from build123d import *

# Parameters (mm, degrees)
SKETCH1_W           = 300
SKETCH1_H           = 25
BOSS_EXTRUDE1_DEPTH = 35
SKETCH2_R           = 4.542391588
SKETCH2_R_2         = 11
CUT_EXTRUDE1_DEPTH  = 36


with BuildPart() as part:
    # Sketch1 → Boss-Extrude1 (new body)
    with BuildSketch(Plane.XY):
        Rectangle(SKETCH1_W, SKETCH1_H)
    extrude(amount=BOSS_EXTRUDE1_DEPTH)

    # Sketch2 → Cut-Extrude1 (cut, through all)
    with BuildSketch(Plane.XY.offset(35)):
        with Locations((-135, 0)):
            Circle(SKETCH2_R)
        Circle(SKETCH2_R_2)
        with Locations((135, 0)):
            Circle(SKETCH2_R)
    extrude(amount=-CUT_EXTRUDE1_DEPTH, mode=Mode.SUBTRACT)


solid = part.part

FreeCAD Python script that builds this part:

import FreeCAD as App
import Part
import Sketcher
Q = App.Units.Quantity

doc = App.newDocument("Part")
body = doc.addObject("PartDesign::Body", "Body")

sketch1 = body.newObject("Sketcher::SketchObject", "Sketch")
sketch1.AttachmentSupport = (doc.getObject("XY_Plane"), [""])
sketch1.MapMode = "FlatFace"
sketch1.addGeometry([
    Part.LineSegment(App.Vector(-150, 12.5, 0), App.Vector(-150, -12.5, 0)),
    Part.LineSegment(App.Vector(-150, -12.5, 0), App.Vector(150, -12.5, 0)),
    Part.LineSegment(App.Vector(150, -12.5, 0), App.Vector(150, 12.5, 0)),
    Part.LineSegment(App.Vector(150, 12.5, 0), App.Vector(-150, 12.5, 0)),
], False)
sketch1.addConstraint([
    Sketcher.Constraint("Coincident", 0, 2, 1, 1),
    Sketcher.Constraint("Coincident", 1, 2, 2, 1),
    Sketcher.Constraint("Coincident", 2, 2, 3, 1),
    Sketcher.Constraint("Coincident", 3, 2, 0, 1),
    Sketcher.Constraint("Vertical", 0),
    Sketcher.Constraint("Horizontal", 1),
    Sketcher.Constraint("Vertical", 2),
    Sketcher.Constraint("Horizontal", 3),
    Sketcher.Constraint("Symmetric", 0, 2, 2, 2, -1, 1),
    Sketcher.Constraint("DistanceX", 1, 1, 1, 2, Q("300 mm")),
    Sketcher.Constraint("DistanceY", 0, 2, 0, 1, Q("25 mm")),
])
pad1 = body.newObject("PartDesign::Pad", "Pad")
pad1.Profile = sketch1
pad1.Length = 35

sketch2 = body.newObject("Sketcher::SketchObject", "Sketch001")
sketch2.AttachmentSupport = (doc.getObject("XY_Plane"), [""])
sketch2.MapMode = "FlatFace"
sketch2.AttachmentOffset = App.Placement(App.Vector(0, 0, 35), App.Rotation())
sketch2.addGeometry([
    Part.Circle(App.Vector(-135, 0, 0), App.Vector(0, 0, 1), 4.542392),
    Part.Circle(App.Vector(0, 0, 0), App.Vector(0, 0, 1), 11),
    Part.Circle(App.Vector(135, 0, 0), App.Vector(0, 0, 1), 4.542392),
], False)
sketch2.addConstraint([
    Sketcher.Constraint("Coincident", 1, 3, -1, 1),
    Sketcher.Constraint("Equal", 0, 2),
    Sketcher.Constraint("Symmetric", 0, 3, 2, 3, -1, 1),
    Sketcher.Constraint("PointOnObject", 0, 3, -1),
    Sketcher.Constraint("Diameter", 1, Q("22 mm")),
    Sketcher.Constraint("DistanceX", 0, 3, -1, 1, Q("135 mm")),
    Sketcher.Constraint("Diameter", 0, Q("9.084783 mm")),
])
pocket1 = body.newObject("PartDesign::Pocket", "Pocket")
pocket1.Profile = sketch2
pocket1.Type = "ThroughAll"

doc.recompute()
